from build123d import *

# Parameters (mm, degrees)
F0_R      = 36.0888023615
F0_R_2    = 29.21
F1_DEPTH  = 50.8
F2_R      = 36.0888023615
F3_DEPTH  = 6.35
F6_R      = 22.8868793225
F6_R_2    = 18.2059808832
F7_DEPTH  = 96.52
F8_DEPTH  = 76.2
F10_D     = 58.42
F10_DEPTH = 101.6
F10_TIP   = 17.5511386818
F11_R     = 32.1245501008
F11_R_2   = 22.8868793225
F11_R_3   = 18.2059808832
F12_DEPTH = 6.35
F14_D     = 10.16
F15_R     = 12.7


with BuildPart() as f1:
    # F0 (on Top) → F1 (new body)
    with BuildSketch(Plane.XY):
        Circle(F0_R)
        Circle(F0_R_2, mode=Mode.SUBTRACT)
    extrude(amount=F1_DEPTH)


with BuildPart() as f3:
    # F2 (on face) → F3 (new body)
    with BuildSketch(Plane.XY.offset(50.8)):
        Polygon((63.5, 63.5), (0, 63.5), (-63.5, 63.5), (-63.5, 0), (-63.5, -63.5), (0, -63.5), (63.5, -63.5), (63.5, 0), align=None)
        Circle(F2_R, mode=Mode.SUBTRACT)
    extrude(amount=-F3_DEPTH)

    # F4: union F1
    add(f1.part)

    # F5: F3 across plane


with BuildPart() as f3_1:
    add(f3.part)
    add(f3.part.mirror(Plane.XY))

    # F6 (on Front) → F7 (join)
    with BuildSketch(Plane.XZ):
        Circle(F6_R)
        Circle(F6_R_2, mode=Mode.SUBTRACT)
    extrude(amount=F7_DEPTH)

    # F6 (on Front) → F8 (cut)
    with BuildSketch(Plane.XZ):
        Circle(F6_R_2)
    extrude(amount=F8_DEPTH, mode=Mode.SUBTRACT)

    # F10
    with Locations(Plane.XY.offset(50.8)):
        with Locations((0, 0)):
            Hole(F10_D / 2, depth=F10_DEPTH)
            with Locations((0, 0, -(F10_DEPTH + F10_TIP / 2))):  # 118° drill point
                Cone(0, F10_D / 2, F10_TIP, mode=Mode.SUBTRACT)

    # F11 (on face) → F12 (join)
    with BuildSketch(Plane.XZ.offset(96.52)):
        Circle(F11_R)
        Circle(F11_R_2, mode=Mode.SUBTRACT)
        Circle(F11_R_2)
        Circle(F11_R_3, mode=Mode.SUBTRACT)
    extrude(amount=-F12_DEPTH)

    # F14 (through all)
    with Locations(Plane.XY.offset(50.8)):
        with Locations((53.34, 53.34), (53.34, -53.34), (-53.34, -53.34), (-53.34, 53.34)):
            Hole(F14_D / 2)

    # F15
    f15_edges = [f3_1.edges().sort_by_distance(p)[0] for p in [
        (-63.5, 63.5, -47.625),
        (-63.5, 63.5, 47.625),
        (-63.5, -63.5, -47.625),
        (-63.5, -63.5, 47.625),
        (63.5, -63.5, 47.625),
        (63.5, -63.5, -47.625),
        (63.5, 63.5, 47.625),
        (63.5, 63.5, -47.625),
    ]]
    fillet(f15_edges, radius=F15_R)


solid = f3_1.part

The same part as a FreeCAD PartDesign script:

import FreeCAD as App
import Part
import Sketcher

V = App.Vector
Q = App.Units.Quantity


def edges_at(feature, points):
    """Names of the edges that pass closest to the given points."""
    edges = feature.Shape.Edges
    near = lambda p: min(range(len(edges)), key=lambda i: edges[i].distToShape(Part.Vertex(*p))[0])
    return sorted({f"Edge{near(p) + 1}" for p in points})


def add_polygon(sketch, points):
    """Adds a closed chain of lines whose ends are joined by coincident constraints."""
    first, n = sketch.GeometryCount, len(points)
    for a, b in zip(points, points[1:] + points[:1]):
        sketch.addGeometry(Part.LineSegment(App.Vector(*a, 0), App.Vector(*b, 0)), False)
    for i in range(n):
        sketch.addConstraint(Sketcher.Constraint("Coincident", first + i, 2, first + (i + 1) % n, 1))

doc = App.newDocument("Part")
body = doc.addObject("PartDesign::Body", "Body")

# Sketch on XY plane
sketch1 = doc.addObject("Sketcher::SketchObject", "Sketch")
body.addObject(sketch1)
sketch1.AttachmentSupport = (doc.XY_Plane, [""])
sketch1.MapMode = "FlatFace"
sketch1.addGeometry(Part.Circle(V(0, 0, 0), V(0, 0, 1), 36), False)
sketch1.addGeometry(Part.Circle(V(0, 0, 0), V(0, 0, 1), 29), False)
sketch1.addConstraint(Sketcher.Constraint("Coincident", 0, 3, -1, 1))
sketch1.addConstraint(Sketcher.Constraint("Coincident", 1, 3, -1, 1))
sketch1.addConstraint(Sketcher.Constraint("Diameter", 1, Q("2.3 in")))
sketch1.addConstraint(Sketcher.Constraint("Diameter", 0, 72.177605))
pad1 = doc.addObject("PartDesign::Pad", "Pad")
body.addObject(pad1)
pad1.Profile = sketch1
pad1.Length = Q("2 in")
body2 = doc.addObject("PartDesign::Body", "Body001")

# Sketch on XY plane
sketch2 = doc.addObject("Sketcher::SketchObject", "Sketch001")
body2.addObject(sketch2)
sketch2.AttachmentSupport = (doc.getObject("XY_Plane001"), [""])
sketch2.MapMode = "FlatFace"
sketch2.AttachmentOffset = App.Placement(V(0, 0, 2 * 25.4), App.Rotation())
add_polygon(sketch2, [(64, 64), (-64, 64), (-64, -64), (64, -64)])  # lines 0-3
sketch2.addGeometry(Part.Circle(V(0, 0, 0), V(0, 0, 1), 36), False)  # 4
sketch2.addConstraint(Sketcher.Constraint("Horizontal", 0))
sketch2.addConstraint(Sketcher.Constraint("Vertical", 1))
sketch2.addConstraint(Sketcher.Constraint("Horizontal", 2))
sketch2.addConstraint(Sketcher.Constraint("Vertical", 3))
sketch2.addConstraint(Sketcher.Constraint("Coincident", 4, 3, -1, 1))
sketch2.addConstraint(Sketcher.Constraint("Symmetric", 0, 2, 2, 2, -1, 1))
sketch2.addConstraint(Sketcher.Constraint("Equal", 2, 1))
sketch2.addConstraint(Sketcher.Constraint("DistanceX", 0, 2, 0, 1, Q("5 in")))
sketch2.addConstraint(Sketcher.Constraint("Diameter", 4, 72.177605))
pad2 = doc.addObject("PartDesign::Pad", "Pad001")
body2.addObject(pad2)
pad2.Profile = sketch2
pad2.Length = Q("0.25 in")
pad2.Reversed = True
doc.recompute()

boolean = doc.addObject("PartDesign::Boolean", "Boolean")
body2.addObject(boolean)
boolean.Type = "Fuse"
boolean.addObjects([body])
body3 = doc.addObject("PartDesign::Body", "Body002")
doc.recompute()

body3.BaseFeature = body2
doc.recompute()

mirroring = doc.addObject("Part::Mirroring", "Mirroring")
mirroring.Source = body2
mirroring.Base = V(0, 0, 0)
mirroring.Normal = V(0, 0, 1)
body4 = doc.addObject("PartDesign::Body", "Body003")
body4.BaseFeature = mirroring
boolean2 = doc.addObject("PartDesign::Boolean", "Boolean001")
body3.addObject(boolean2)
boolean2.Type = "Fuse"
boolean2.addObjects([body4])
doc.recompute()

# Sketch on XZ plane
sketch3 = doc.addObject("Sketcher::SketchObject", "Sketch002")
body3.addObject(sketch3)
sketch3.AttachmentSupport = (doc.getObject("XZ_Plane002"), [""])
sketch3.MapMode = "FlatFace"
sketch3.addGeometry(Part.Circle(V(0, 0, 0), V(0, 0, 1), 23), False)
sketch3.addGeometry(Part.Circle(V(0, 0, 0), V(0, 0, 1), 18), False)
sketch3.addConstraint(Sketcher.Constraint("Coincident", 0, 3, -1, 1))
sketch3.addConstraint(Sketcher.Constraint("Coincident", 1, 3, -1, 1))
sketch3.addConstraint(Sketcher.Constraint("Diameter", 0, 45.773759))
sketch3.addConstraint(Sketcher.Constraint("Diameter", 1, 36.411962))
pad3 = doc.addObject("PartDesign::Pad", "Pad002")
body3.addObject(pad3)
pad3.Profile = sketch3
pad3.Length = Q("3.8 in")

# Sketch on XZ plane
sketch4 = doc.addObject("Sketcher::SketchObject", "Sketch003")
body3.addObject(sketch4)
sketch4.AttachmentSupport = (doc.getObject("XZ_Plane002"), [""])
sketch4.MapMode = "FlatFace"
sketch4.addGeometry(Part.Circle(V(0, 0, 0), V(0, 0, 1), 18), False)
sketch4.addConstraint(Sketcher.Constraint("Coincident", 0, 3, -1, 1))
sketch4.addConstraint(Sketcher.Constraint("Diameter", 0, 36.411962))
pocket1 = doc.addObject("PartDesign::Pocket", "Pocket")
body3.addObject(pocket1)
pocket1.Profile = sketch4
pocket1.Length = Q("3 in")
pocket1.Reversed = True

# Sketch on XY plane
sketch5 = doc.addObject("Sketcher::SketchObject", "Sketch004")
body3.addObject(sketch5)
sketch5.AttachmentSupport = (doc.getObject("XY_Plane002"), [""])
sketch5.MapMode = "FlatFace"
sketch5.AttachmentOffset = App.Placement(V(0, 0, 2 * 25.4), App.Rotation())
sketch5.addGeometry(Part.Circle(V(0, 0, 0), V(0, 0, 1), 29), False)
sketch5.addConstraint(Sketcher.Constraint("Coincident", 0, 3, -1, 1))
sketch5.addConstraint(Sketcher.Constraint("Diameter", 0, Q("2.3 in")))
doc.recompute()
hole = doc.addObject("PartDesign::Hole", "Hole")
body3.addObject(hole)
hole.Profile = sketch5
hole.ThreadType = "None"
hole.Diameter = Q("2.3 in")
hole.DepthType = "Dimension"
hole.Depth = Q("4 in")
hole.DrillPoint = "Angled"
hole.DrillPointAngle = 118

# Sketch on XZ plane
sketch6 = doc.addObject("Sketcher::SketchObject", "Sketch005")
body3.addObject(sketch6)
sketch6.AttachmentSupport = (doc.getObject("XZ_Plane002"), [""])
sketch6.MapMode = "FlatFace"
sketch6.AttachmentOffset = App.Placement(V(0, 0, 3.8 * 25.4), App.Rotation())
sketch6.addGeometry(Part.Circle(V(0, 0, 0), V(0, 0, 1), 32), False)
sketch6.addGeometry(Part.Circle(V(0, 0, 0), V(0, 0, 1), 18), False)
sketch6.addConstraint(Sketcher.Constraint("Coincident", 0, 3, -1, 1))
sketch6.addConstraint(Sketcher.Constraint("Coincident", 1, 3, -1, 1))
sketch6.addConstraint(Sketcher.Constraint("Diameter", 0, 64.2491))
sketch6.addConstraint(Sketcher.Constraint("Diameter", 1, 36.411962))
pad4 = doc.addObject("PartDesign::Pad", "Pad003")
body3.addObject(pad4)
pad4.Profile = sketch6
pad4.Length = Q("0.25 in")
pad4.Reversed = True

# Sketch on XY plane
sketch7 = doc.addObject("Sketcher::SketchObject", "Sketch006")
body3.addObject(sketch7)
sketch7.AttachmentSupport = (doc.getObject("XY_Plane002"), [""])
sketch7.MapMode = "FlatFace"
sketch7.AttachmentOffset = App.Placement(V(0, 0, 2 * 25.4), App.Rotation())
sketch7.addGeometry(Part.Circle(V(53, 53, 0), V(0, 0, 1), 5), False)
sketch7.addGeometry(Part.Circle(V(53, -53, 0), V(0, 0, 1), 5), False)
sketch7.addGeometry(Part.Circle(V(-53, -53, 0), V(0, 0, 1), 5), False)
sketch7.addGeometry(Part.Circle(V(-53, 53, 0), V(0, 0, 1), 5), False)
sketch7.addConstraint(Sketcher.Constraint("Equal", 0, 1))
sketch7.addConstraint(Sketcher.Constraint("Equal", 1, 2))
sketch7.addConstraint(Sketcher.Constraint("Equal", 2, 3))
sketch7.addConstraint(Sketcher.Constraint("Symmetric", 0, 3, 2, 3, -1, 1))
sketch7.addConstraint(Sketcher.Constraint("Symmetric", 1, 3, 3, 3, -1, 1))
sketch7.addConstraint(Sketcher.Constraint("Symmetric", 1, 3, 2, 3, -2))
sketch7.addConstraint(Sketcher.Constraint("Diameter", 0, Q("0.4 in")))
sketch7.addConstraint(Sketcher.Constraint("DistanceX", -1, 1, 0, 3, Q("2.1 in")))
sketch7.addConstraint(Sketcher.Constraint("DistanceY", -1, 1, 0, 3, Q("2.1 in")))
doc.recompute()
hole2 = doc.addObject("PartDesign::Hole", "Hole001")
body3.addObject(hole2)
hole2.Profile = sketch7
hole2.ThreadType = "None"
hole2.Diameter = Q("0.4 in")
hole2.DepthType = "ThroughAll"
doc.recompute()

fillet = doc.addObject("PartDesign::Fillet", "Fillet")
body3.addObject(fillet)
fillet.Base = (hole2, edges_at(hole2, [
    (-63.5, 63.5, -47.625),
    (-63.5, 63.5, 47.625),
    (-63.5, -63.5, -47.625),
    (-63.5, -63.5, 47.625),
    (63.5, -63.5, 47.625),
    (63.5, -63.5, -47.625),
    (63.5, 63.5, 47.625),
    (63.5, 63.5, -47.625),
]))
fillet.Radius = Q("0.5 in")
mirroring.Visibility = False

doc.recompute()
